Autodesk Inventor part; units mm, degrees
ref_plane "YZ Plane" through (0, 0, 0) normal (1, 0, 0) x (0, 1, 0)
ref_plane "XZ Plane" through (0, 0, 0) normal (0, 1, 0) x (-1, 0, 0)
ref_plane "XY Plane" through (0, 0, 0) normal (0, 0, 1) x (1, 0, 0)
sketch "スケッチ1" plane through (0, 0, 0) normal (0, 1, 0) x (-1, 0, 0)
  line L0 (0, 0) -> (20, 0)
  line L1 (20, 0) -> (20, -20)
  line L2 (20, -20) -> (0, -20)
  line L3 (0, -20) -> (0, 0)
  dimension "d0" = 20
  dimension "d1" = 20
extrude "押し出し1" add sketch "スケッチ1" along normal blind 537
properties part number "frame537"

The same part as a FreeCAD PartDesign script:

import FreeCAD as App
import Part
import Sketcher


def add_polygon(sketch, points):
    """Adds a closed chain of lines whose ends are joined by coincident constraints."""
    first, n = sketch.GeometryCount, len(points)
    for a, b in zip(points, points[1:] + points[:1]):
        sketch.addGeometry(Part.LineSegment(App.Vector(*a, 0), App.Vector(*b, 0)), False)
    for i in range(n):
        sketch.addConstraint(Sketcher.Constraint("Coincident", first + i, 2, first + (i + 1) % n, 1))

doc = App.newDocument("Part")
body = doc.addObject("PartDesign::Body", "Body")

# Sketch on XZ plane
sketch1 = body.newObject("Sketcher::SketchObject", "Sketch")
sketch1.AttachmentSupport = (doc.getObject("XZ_Plane"), [""])
sketch1.MapMode = "FlatFace"
add_polygon(sketch1, [(-20, 0), (0, 0), (0, -20), (-20, -20)])  # lines 0-3
sketch1.addConstraint(Sketcher.Constraint("Horizontal", 0))
sketch1.addConstraint(Sketcher.Constraint("Vertical", 1))
sketch1.addConstraint(Sketcher.Constraint("Horizontal", 2))
sketch1.addConstraint(Sketcher.Constraint("Vertical", 3))
sketch1.addConstraint(Sketcher.Constraint("Coincident", 0, 2, -1, 1))
sketch1.addConstraint(Sketcher.Constraint("Equal", 2, 1))
sketch1.addConstraint(Sketcher.Constraint("DistanceX", 0, 1, 0, 2, 20.0))
pad1 = body.newObject("PartDesign::Pad", "Pad")
pad1.Profile = sketch1
pad1.Length = 537
pad1.Reversed = True

doc.recompute()
